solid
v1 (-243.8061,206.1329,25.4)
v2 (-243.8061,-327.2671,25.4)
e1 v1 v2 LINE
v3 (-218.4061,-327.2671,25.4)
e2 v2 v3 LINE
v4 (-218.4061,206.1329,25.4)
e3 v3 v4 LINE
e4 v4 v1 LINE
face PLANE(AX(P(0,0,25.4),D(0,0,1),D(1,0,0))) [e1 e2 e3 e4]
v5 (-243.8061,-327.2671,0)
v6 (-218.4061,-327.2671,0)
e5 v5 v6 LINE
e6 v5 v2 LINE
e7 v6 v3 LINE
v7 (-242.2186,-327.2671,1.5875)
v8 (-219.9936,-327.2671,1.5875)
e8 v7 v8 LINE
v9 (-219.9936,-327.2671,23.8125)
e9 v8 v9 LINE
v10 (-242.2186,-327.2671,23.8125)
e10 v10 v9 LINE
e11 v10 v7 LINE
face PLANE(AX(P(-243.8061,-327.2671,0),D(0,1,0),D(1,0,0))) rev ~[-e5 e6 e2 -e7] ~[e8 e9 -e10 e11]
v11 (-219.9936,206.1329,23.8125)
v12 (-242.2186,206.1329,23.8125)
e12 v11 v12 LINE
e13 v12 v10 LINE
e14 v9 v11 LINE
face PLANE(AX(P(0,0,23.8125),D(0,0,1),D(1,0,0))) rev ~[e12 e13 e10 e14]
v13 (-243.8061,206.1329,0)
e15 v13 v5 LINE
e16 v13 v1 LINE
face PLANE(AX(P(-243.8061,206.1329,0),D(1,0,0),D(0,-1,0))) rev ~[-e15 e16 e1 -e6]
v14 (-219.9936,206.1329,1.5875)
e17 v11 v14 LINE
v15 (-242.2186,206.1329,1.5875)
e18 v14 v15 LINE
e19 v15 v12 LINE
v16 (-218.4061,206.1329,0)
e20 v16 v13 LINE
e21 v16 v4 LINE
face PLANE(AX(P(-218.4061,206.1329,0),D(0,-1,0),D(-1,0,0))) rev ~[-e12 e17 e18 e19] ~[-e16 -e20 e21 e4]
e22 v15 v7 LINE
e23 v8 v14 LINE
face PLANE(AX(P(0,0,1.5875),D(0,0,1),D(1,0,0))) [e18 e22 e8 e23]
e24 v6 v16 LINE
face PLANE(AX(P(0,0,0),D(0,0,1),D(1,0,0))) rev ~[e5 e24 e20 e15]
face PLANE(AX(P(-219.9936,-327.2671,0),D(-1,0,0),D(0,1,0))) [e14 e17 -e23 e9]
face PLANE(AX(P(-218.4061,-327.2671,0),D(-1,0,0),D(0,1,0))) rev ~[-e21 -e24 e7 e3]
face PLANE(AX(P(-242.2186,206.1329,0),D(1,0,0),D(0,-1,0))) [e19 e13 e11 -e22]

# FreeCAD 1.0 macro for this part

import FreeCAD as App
import Part
import Sketcher
Q = App.Units.Quantity


def faces_at(feature, points):
    """Names of the faces that lie closest to the given points."""
    faces = feature.Shape.Faces
    near = lambda p: min(range(len(faces)), key=lambda i: faces[i].distToShape(Part.Vertex(*p))[0])
    return sorted({f"Face{near(p) + 1}" for p in points})

doc = App.newDocument("Part")
body = doc.addObject("PartDesign::Body", "Body")

# Sketch on XY plane
sketch1 = doc.addObject("Sketcher::SketchObject", "Sketch")
body.addObject(sketch1)
sketch1.AttachmentSupport = (doc.XY_Plane, [""])
sketch1.MapMode = "FlatFace"
sketch1.addGeometry(Part.LineSegment(App.Vector(-218.4061, 206.1329, 0), App.Vector(-243.8061, 206.1329, 0)), False)
sketch1.addGeometry(Part.LineSegment(App.Vector(-243.8061, 206.1329, 0), App.Vector(-243.8061, -327.2671, 0)), False)
sketch1.addGeometry(Part.LineSegment(App.Vector(-243.8061, -327.2671, 0), App.Vector(-218.4061, -327.2671, 0)), False)
sketch1.addGeometry(Part.LineSegment(App.Vector(-218.4061, -327.2671, 0), App.Vector(-218.4061, 206.1329, 0)), False)
sketch1.addConstraint(Sketcher.Constraint("Coincident", 0, 2, 1, 1))
sketch1.addConstraint(Sketcher.Constraint("Coincident", 1, 2, 2, 1))
sketch1.addConstraint(Sketcher.Constraint("Coincident", 2, 2, 3, 1))
sketch1.addConstraint(Sketcher.Constraint("Coincident", 3, 2, 0, 1))
sketch1.addConstraint(Sketcher.Constraint("Horizontal", 0))
sketch1.addConstraint(Sketcher.Constraint("Vertical", 1))
sketch1.addConstraint(Sketcher.Constraint("Horizontal", 2))
sketch1.addConstraint(Sketcher.Constraint("Vertical", 3))
sketch1.addConstraint(Sketcher.Constraint("DistanceX", 0, 2, 0, 1, Q("1 in")))
sketch1.addConstraint(Sketcher.Constraint("DistanceY", 1, 2, 1, 1, Q("21 in")))
sketch1.addConstraint(Sketcher.Constraint("DistanceX", 0, 2, -1, 1, Q("243.806 mm")))
sketch1.addConstraint(Sketcher.Constraint("DistanceY", -1, 1, 0, 2, Q("206.133 mm")))
pad1 = doc.addObject("PartDesign::Pad", "Pad")
body.addObject(pad1)
pad1.Profile = sketch1
pad1.Length = Q("1 in")
doc.recompute()

thickness = doc.addObject("PartDesign::Thickness", "Thickness")
body.addObject(thickness)
thickness.Base = (pad1, faces_at(pad1, [(-226.873, -327.267, 8.467), (-235.339, 206.133, 8.467)]))
thickness.Value = Q("0.0625 in")
thickness.Reversed = True
thickness.Join = "Intersection"

doc.recompute()
